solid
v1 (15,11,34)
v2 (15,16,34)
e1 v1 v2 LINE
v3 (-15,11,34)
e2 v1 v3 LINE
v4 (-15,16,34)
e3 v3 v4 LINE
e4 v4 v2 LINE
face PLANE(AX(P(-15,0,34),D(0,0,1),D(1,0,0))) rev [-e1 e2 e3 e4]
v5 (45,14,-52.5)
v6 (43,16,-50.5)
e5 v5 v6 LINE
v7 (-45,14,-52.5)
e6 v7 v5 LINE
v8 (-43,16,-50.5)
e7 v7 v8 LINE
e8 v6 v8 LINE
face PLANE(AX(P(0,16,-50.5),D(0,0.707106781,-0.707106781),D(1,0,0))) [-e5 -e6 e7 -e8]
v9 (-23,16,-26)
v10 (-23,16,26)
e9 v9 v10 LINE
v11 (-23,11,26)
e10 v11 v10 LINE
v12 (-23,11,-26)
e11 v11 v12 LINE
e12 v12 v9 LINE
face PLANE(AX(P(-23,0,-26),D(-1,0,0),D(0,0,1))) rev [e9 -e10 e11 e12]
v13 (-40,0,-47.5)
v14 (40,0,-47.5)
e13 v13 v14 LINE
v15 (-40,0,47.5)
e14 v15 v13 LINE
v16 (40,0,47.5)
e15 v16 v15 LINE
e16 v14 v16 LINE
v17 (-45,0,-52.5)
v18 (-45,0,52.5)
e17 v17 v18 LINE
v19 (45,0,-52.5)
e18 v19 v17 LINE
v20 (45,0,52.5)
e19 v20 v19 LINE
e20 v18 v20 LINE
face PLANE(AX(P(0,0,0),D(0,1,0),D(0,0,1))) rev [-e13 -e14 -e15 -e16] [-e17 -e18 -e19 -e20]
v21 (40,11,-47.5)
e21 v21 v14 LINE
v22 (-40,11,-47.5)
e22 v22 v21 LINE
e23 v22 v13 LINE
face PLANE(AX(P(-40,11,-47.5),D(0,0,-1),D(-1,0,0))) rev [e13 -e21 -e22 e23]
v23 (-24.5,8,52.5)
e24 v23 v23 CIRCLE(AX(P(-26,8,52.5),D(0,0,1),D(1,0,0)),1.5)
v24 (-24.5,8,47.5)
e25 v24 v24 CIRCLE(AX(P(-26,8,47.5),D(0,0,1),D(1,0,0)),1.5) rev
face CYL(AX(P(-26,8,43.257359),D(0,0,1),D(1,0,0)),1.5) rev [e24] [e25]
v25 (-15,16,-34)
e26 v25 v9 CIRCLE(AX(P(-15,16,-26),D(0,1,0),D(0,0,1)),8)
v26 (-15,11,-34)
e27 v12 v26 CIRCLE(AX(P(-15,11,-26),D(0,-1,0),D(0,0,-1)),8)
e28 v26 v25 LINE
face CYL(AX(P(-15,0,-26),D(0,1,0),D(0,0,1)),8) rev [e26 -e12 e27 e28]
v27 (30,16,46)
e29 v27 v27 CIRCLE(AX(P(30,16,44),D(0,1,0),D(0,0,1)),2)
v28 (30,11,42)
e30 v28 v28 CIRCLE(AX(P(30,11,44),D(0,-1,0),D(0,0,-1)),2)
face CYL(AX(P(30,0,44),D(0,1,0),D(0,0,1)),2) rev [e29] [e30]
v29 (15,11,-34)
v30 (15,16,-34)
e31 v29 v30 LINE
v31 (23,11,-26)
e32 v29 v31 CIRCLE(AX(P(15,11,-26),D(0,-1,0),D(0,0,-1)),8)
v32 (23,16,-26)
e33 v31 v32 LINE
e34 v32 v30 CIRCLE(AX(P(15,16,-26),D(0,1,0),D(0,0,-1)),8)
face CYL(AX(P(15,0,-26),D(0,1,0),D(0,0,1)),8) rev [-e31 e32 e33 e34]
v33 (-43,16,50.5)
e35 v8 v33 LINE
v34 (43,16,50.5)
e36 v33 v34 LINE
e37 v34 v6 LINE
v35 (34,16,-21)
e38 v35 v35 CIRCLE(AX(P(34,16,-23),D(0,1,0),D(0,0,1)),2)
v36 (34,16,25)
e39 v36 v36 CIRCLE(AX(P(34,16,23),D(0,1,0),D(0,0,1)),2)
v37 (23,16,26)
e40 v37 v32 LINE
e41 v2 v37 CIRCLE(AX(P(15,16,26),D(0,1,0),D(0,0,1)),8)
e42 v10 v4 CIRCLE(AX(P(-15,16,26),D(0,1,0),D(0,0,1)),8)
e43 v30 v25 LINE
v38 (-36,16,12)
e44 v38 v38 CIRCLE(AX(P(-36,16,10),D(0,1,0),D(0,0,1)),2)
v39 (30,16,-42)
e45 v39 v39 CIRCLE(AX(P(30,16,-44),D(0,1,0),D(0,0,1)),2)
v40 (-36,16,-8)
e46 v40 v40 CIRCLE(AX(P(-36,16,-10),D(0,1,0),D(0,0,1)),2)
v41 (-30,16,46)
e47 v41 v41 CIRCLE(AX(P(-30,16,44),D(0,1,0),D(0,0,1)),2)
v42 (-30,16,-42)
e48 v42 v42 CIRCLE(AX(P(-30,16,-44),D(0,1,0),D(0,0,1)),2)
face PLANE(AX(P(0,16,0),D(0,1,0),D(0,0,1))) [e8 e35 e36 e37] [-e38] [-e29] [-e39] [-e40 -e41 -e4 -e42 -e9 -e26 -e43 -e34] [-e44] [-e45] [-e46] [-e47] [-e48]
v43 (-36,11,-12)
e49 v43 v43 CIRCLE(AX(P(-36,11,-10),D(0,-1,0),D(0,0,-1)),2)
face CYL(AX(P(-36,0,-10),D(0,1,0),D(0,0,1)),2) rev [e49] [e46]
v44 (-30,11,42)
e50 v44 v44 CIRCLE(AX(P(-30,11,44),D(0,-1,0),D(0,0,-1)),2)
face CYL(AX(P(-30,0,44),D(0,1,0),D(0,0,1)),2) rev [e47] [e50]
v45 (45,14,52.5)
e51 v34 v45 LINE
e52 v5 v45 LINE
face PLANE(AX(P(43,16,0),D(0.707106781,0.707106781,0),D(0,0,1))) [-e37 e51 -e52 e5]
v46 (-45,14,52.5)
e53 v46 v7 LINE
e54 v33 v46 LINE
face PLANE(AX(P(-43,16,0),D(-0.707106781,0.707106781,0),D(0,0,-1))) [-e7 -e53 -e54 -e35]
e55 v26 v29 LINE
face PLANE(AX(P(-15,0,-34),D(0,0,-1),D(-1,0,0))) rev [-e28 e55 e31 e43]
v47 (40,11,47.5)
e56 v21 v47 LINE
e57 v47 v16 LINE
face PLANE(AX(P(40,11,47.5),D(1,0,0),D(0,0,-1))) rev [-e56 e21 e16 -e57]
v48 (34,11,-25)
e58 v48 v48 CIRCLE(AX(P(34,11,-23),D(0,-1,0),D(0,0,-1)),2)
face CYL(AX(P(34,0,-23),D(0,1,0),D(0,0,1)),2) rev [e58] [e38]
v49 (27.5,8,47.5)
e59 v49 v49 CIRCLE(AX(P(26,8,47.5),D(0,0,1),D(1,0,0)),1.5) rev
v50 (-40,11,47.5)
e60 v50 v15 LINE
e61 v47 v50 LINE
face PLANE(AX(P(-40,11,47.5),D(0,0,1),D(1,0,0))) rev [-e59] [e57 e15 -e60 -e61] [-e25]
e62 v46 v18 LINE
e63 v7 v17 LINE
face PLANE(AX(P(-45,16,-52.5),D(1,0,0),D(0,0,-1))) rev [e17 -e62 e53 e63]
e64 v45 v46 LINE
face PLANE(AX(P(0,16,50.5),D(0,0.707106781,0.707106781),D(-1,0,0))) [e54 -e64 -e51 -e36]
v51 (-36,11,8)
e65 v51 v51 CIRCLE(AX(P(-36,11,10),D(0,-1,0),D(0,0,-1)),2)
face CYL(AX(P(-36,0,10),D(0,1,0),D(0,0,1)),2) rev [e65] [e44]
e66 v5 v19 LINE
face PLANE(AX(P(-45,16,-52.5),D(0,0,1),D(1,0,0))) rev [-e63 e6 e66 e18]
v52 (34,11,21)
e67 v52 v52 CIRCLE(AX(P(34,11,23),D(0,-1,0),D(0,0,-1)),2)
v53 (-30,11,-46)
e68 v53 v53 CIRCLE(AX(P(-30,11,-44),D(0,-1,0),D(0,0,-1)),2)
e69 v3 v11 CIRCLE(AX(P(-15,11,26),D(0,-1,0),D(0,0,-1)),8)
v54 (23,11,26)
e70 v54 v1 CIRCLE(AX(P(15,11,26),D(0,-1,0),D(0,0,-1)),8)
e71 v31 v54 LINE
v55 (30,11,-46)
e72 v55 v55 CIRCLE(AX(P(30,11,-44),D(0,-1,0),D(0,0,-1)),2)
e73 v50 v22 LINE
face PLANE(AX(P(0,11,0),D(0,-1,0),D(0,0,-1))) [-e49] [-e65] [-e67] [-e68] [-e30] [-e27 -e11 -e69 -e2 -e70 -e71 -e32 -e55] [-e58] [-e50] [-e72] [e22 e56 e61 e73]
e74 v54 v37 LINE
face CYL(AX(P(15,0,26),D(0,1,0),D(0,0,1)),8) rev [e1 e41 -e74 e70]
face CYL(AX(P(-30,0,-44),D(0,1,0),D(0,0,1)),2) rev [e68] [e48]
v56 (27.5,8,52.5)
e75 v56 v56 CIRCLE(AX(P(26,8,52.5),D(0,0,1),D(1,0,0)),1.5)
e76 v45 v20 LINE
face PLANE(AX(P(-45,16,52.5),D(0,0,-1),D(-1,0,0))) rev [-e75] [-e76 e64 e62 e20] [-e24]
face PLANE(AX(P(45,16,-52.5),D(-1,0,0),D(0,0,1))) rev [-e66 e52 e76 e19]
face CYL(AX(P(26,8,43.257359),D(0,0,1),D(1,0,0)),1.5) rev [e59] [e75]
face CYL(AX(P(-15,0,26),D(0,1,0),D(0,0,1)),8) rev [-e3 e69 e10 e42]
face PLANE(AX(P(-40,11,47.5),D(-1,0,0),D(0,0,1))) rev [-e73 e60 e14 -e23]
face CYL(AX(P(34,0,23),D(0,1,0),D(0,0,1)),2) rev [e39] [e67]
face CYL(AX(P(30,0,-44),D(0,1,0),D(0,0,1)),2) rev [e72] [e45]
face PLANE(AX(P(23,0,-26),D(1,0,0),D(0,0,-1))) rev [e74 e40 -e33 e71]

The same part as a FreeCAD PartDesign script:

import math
import FreeCAD as App
import Part
import Sketcher

V = App.Vector
Q = App.Units.Quantity


def edges_at(feature, points):
    """Names of the edges that pass closest to the given points."""
    edges = feature.Shape.Edges
    near = lambda p: min(range(len(edges)), key=lambda i: edges[i].distToShape(Part.Vertex(*p))[0])
    return sorted({f"Edge{near(p) + 1}" for p in points})

doc = App.newDocument("Part")
body = doc.addObject("PartDesign::Body", "Body")

# Sketch on XZ plane
sketch1 = body.newObject("Sketcher::SketchObject", "Sketch")
sketch1.AttachmentSupport = (doc.getObject("XZ_Plane"), [""])
sketch1.MapMode = "FlatFace"
sketch1.addGeometry(Part.LineSegment(V(-45, -52, 0), V(-45, 52, 0)), False)
sketch1.addGeometry(Part.LineSegment(V(-45, 52, 0), V(45, 52, 0)), False)
sketch1.addGeometry(Part.LineSegment(V(45, 52, 0), V(45, -52, 0)), False)
sketch1.addGeometry(Part.LineSegment(V(45, -52, 0), V(-45, -52, 0)), False)
sketch1.addConstraint(Sketcher.Constraint("Coincident", 0, 2, 1, 1))
sketch1.addConstraint(Sketcher.Constraint("Coincident", 1, 2, 2, 1))
sketch1.addConstraint(Sketcher.Constraint("Coincident", 2, 2, 3, 1))
sketch1.addConstraint(Sketcher.Constraint("Coincident", 3, 2, 0, 1))
sketch1.addConstraint(Sketcher.Constraint("Vertical", 0))
sketch1.addConstraint(Sketcher.Constraint("Horizontal", 1))
sketch1.addConstraint(Sketcher.Constraint("Vertical", 2))
sketch1.addConstraint(Sketcher.Constraint("Horizontal", 3))
sketch1.addConstraint(Sketcher.Constraint("Symmetric", 0, 2, 2, 2, -1, 1))
sketch1.addConstraint(Sketcher.Constraint("DistanceX", 1, 1, 1, 2, Q("90 mm")))
sketch1.addConstraint(Sketcher.Constraint("DistanceY", 0, 1, 0, 2, Q("105 mm")))
pad1 = body.newObject("PartDesign::Pad", "Pad")
pad1.Profile = sketch1
pad1.Length = 16
pad1.Reversed = True
doc.recompute()

chamfer = body.newObject("PartDesign::Chamfer", "Chamfer")
chamfer.Base = (pad1, edges_at(pad1, [
    (-45, 16, 0),
    (0, 16, 52.5),
    (45, 16, 0),
    (0, 16, -52.5),
]))
chamfer.Size = 2

# Sketch on XZ plane
sketch2 = body.newObject("Sketcher::SketchObject", "Sketch001")
sketch2.AttachmentSupport = (doc.getObject("XZ_Plane"), [""])
sketch2.MapMode = "FlatFace"
sketch2.addGeometry(Part.LineSegment(V(-40, 48, 0), V(-40, -48, 0)), False)
sketch2.addGeometry(Part.LineSegment(V(-40, -48, 0), V(40, -48, 0)), False)
sketch2.addGeometry(Part.LineSegment(V(40, -48, 0), V(40, 48, 0)), False)
sketch2.addGeometry(Part.LineSegment(V(40, 48, 0), V(-40, 48, 0)), False)
sketch2.addConstraint(Sketcher.Constraint("Coincident", 0, 2, 1, 1))
sketch2.addConstraint(Sketcher.Constraint("Coincident", 1, 2, 2, 1))
sketch2.addConstraint(Sketcher.Constraint("Coincident", 2, 2, 3, 1))
sketch2.addConstraint(Sketcher.Constraint("Coincident", 3, 2, 0, 1))
sketch2.addConstraint(Sketcher.Constraint("Vertical", 0))
sketch2.addConstraint(Sketcher.Constraint("Horizontal", 1))
sketch2.addConstraint(Sketcher.Constraint("Vertical", 2))
sketch2.addConstraint(Sketcher.Constraint("Horizontal", 3))
sketch2.addConstraint(Sketcher.Constraint("Symmetric", 0, 2, 2, 2, -1, 1))
sketch2.addConstraint(Sketcher.Constraint("DistanceX", 1, 1, 1, 2, Q("80 mm")))
sketch2.addConstraint(Sketcher.Constraint("DistanceY", 0, 2, 0, 1, Q("95 mm")))
pocket1 = body.newObject("PartDesign::Pocket", "Pocket")
pocket1.Profile = sketch2
pocket1.Length = 11

# Sketch on XZ plane
sketch3 = body.newObject("Sketcher::SketchObject", "Sketch002")
sketch3.AttachmentSupport = (doc.getObject("XZ_Plane"), [""])
sketch3.MapMode = "FlatFace"
sketch3.AttachmentOffset = App.Placement(V(0, 0, -16), App.Rotation())
sketch3.addGeometry(Part.LineSegment(V(15, -34, 0), V(-15, -34, 0)), False)
sketch3.addGeometry(Part.ArcOfCircle(Part.Circle(V(-15, -26, 0), V(0, 0, 1), 8), math.radians(-180), math.radians(-90)), False)
sketch3.addGeometry(Part.LineSegment(V(-23, -26, 0), V(-23, 26, 0)), False)
sketch3.addGeometry(Part.ArcOfCircle(Part.Circle(V(-15, 26, 0), V(0, 0, 1), 8), math.radians(90), math.radians(180)), False)
sketch3.addGeometry(Part.LineSegment(V(-15, 34, 0), V(15, 34, 0)), False)
sketch3.addGeometry(Part.ArcOfCircle(Part.Circle(V(15, 26, 0), V(0, 0, 1), 8), math.radians(0), math.radians(90)), False)
sketch3.addGeometry(Part.LineSegment(V(23, 26, 0), V(23, -26, 0)), False)
sketch3.addGeometry(Part.ArcOfCircle(Part.Circle(V(15, -26, 0), V(0, 0, 1), 8), math.radians(-90), math.radians(0)), False)
sketch3.addConstraint(Sketcher.Constraint("Tangent", 0, 2, 1, 2))
sketch3.addConstraint(Sketcher.Constraint("Tangent", 1, 1, 2, 1))
sketch3.addConstraint(Sketcher.Constraint("Tangent", 2, 2, 3, 2))
sketch3.addConstraint(Sketcher.Constraint("Tangent", 3, 1, 4, 1))
sketch3.addConstraint(Sketcher.Constraint("Tangent", 4, 2, 5, 2))
sketch3.addConstraint(Sketcher.Constraint("Tangent", 5, 1, 6, 1))
sketch3.addConstraint(Sketcher.Constraint("Tangent", 6, 2, 7, 2))
sketch3.addConstraint(Sketcher.Constraint("Tangent", 7, 1, 0, 1))
sketch3.addConstraint(Sketcher.Constraint("Horizontal", 0))
sketch3.addConstraint(Sketcher.Constraint("Vertical", 2))
sketch3.addConstraint(Sketcher.Constraint("Horizontal", 4))
sketch3.addConstraint(Sketcher.Constraint("Vertical", 6))
sketch3.addConstraint(Sketcher.Constraint("Equal", 1, 3))
sketch3.addConstraint(Sketcher.Constraint("Equal", 3, 5))
sketch3.addConstraint(Sketcher.Constraint("Equal", 5, 7))
sketch3.addConstraint(Sketcher.Constraint("Symmetric", 1, 3, 5, 3, -1, 1))
sketch3.addConstraint(Sketcher.Constraint("Radius", 1, Q("8 mm")))
sketch3.addConstraint(Sketcher.Constraint("DistanceX", 0, 2, 0, 1, Q("30 mm")))
sketch3.addConstraint(Sketcher.Constraint("DistanceY", 2, 1, 2, 2, Q("52 mm")))
pocket2 = body.newObject("PartDesign::Pocket", "Pocket001")
pocket2.Profile = sketch3
pocket2.Type = "ThroughAll"
pocket2.Reversed = True

# Sketch on XZ plane
sketch4 = body.newObject("Sketcher::SketchObject", "Sketch003")
sketch4.AttachmentSupport = (doc.getObject("XZ_Plane"), [""])
sketch4.MapMode = "FlatFace"
sketch4.AttachmentOffset = App.Placement(V(0, 0, -16), App.Rotation())
sketch4.addGeometry(Part.Circle(V(-30, -44, 0), V(0, 0, 1), 2), False)
sketch4.addGeometry(Part.Circle(V(-30, 44, 0), V(0, 0, 1), 2), False)
sketch4.addGeometry(Part.Circle(V(30, 44, 0), V(0, 0, 1), 2), False)
sketch4.addGeometry(Part.Circle(V(30, -44, 0), V(0, 0, 1), 2), False)
sketch4.addGeometry(Part.Circle(V(-36, 10, 0), V(0, 0, 1), 2), False)
sketch4.addGeometry(Part.Circle(V(34, -23, 0), V(0, 0, 1), 2), False)
sketch4.addGeometry(Part.Circle(V(-36, -10, 0), V(0, 0, 1), 2), False)
sketch4.addGeometry(Part.Circle(V(34, 23, 0), V(0, 0, 1), 2), False)
sketch4.addConstraint(Sketcher.Constraint("Equal", 0, 1))
sketch4.addConstraint(Sketcher.Constraint("Equal", 1, 2))
sketch4.addConstraint(Sketcher.Constraint("Equal", 2, 3))
sketch4.addConstraint(Sketcher.Constraint("Equal", 3, 4))
sketch4.addConstraint(Sketcher.Constraint("Equal", 4, 5))
sketch4.addConstraint(Sketcher.Constraint("Equal", 5, 6))
sketch4.addConstraint(Sketcher.Constraint("Equal", 6, 7))
sketch4.addConstraint(Sketcher.Constraint("Symmetric", 0, 3, 2, 3, -1, 1))
sketch4.addConstraint(Sketcher.Constraint("Symmetric", 1, 3, 3, 3, -1, 1))
sketch4.addConstraint(Sketcher.Constraint("Symmetric", 1, 3, 2, 3, -2))
sketch4.addConstraint(Sketcher.Constraint("Symmetric", 4, 3, 6, 3, -1))
sketch4.addConstraint(Sketcher.Constraint("Symmetric", 5, 3, 7, 3, -1))
sketch4.addConstraint(Sketcher.Constraint("Diameter", 0, Q("4 mm")))
sketch4.addConstraint(Sketcher.Constraint("DistanceX", 0, 3, -1, 1, Q("30 mm")))
sketch4.addConstraint(Sketcher.Constraint("DistanceY", 0, 3, -1, 1, Q("44 mm")))
sketch4.addConstraint(Sketcher.Constraint("DistanceX", 4, 3, -1, 1, Q("36 mm")))
sketch4.addConstraint(Sketcher.Constraint("DistanceY", -1, 1, 4, 3, Q("10 mm")))
sketch4.addConstraint(Sketcher.Constraint("DistanceX", -1, 1, 5, 3, Q("34 mm")))
sketch4.addConstraint(Sketcher.Constraint("DistanceY", 5, 3, -1, 1, Q("23 mm")))
pocket3 = body.newObject("PartDesign::Pocket", "Pocket002")
pocket3.Profile = sketch4
pocket3.Type = "ThroughAll"
pocket3.Reversed = True

# Sketch on XY plane
sketch5 = body.newObject("Sketcher::SketchObject", "Sketch004")
sketch5.AttachmentSupport = (doc.getObject("XY_Plane"), [""])
sketch5.MapMode = "FlatFace"
sketch5.AttachmentOffset = App.Placement(V(0, 0, 52.5), App.Rotation())
sketch5.addGeometry(Part.Circle(V(-26, 8, 0), V(0, 0, 1), 1.5), False)
sketch5.addGeometry(Part.Circle(V(26, 8, 0), V(0, 0, 1), 1.5), False)
sketch5.addConstraint(Sketcher.Constraint("Equal", 0, 1))
sketch5.addConstraint(Sketcher.Constraint("Symmetric", 0, 3, 1, 3, -2))
sketch5.addConstraint(Sketcher.Constraint("Diameter", 0, Q("3 mm")))
sketch5.addConstraint(Sketcher.Constraint("DistanceX", 0, 3, -1, 1, Q("26 mm")))
sketch5.addConstraint(Sketcher.Constraint("DistanceY", -1, 1, 0, 3, Q("8 mm")))
pocket4 = body.newObject("PartDesign::Pocket", "Pocket003")
pocket4.Profile = sketch5
pocket4.Length = 5

doc.recompute()
